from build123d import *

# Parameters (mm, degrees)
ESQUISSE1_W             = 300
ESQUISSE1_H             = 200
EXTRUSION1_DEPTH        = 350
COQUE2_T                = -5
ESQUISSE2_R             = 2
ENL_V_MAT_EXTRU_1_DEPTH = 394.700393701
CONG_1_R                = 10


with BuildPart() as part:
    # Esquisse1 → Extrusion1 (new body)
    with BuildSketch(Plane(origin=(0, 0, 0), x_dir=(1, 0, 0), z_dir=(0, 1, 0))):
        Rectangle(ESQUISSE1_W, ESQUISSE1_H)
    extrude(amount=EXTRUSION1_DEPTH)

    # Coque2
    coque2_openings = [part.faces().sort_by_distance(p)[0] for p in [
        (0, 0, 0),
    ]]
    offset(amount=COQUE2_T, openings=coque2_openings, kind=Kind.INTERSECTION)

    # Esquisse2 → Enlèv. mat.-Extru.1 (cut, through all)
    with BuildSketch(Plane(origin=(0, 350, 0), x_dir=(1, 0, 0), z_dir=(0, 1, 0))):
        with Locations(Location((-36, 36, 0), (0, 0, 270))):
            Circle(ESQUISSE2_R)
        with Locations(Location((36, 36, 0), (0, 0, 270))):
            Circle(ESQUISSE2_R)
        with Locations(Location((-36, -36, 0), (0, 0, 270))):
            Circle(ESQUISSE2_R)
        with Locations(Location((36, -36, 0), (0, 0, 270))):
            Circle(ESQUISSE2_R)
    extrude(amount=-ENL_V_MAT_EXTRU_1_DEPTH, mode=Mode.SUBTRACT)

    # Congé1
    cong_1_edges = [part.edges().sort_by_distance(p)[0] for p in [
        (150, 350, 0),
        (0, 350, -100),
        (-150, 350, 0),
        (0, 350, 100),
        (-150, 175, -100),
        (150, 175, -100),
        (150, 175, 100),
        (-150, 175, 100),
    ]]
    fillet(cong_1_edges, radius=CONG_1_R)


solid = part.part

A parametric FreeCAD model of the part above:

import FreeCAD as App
import Part
import Sketcher


def edges_at(feature, points):
    """Names of the edges that pass closest to the given points."""
    edges = feature.Shape.Edges
    near = lambda p: min(range(len(edges)), key=lambda i: edges[i].distToShape(Part.Vertex(*p))[0])
    return sorted({f"Edge{near(p) + 1}" for p in points})


def faces_at(feature, points):
    """Names of the faces that lie closest to the given points."""
    faces = feature.Shape.Faces
    near = lambda p: min(range(len(faces)), key=lambda i: faces[i].distToShape(Part.Vertex(*p))[0])
    return sorted({f"Face{near(p) + 1}" for p in points})

doc = App.newDocument("Part")
body = doc.addObject("PartDesign::Body", "Body")

# Sketch on XZ plane
sketch1 = doc.addObject("Sketcher::SketchObject", "Sketch")
body.addObject(sketch1)
sketch1.AttachmentSupport = (doc.XZ_Plane, [""])
sketch1.MapMode = "FlatFace"
sketch1.addGeometry([
    Part.LineSegment(App.Vector(-150, -100, 0), App.Vector(-150, 100, 0)),
    Part.LineSegment(App.Vector(-150, 100, 0), App.Vector(150, 100, 0)),
    Part.LineSegment(App.Vector(150, 100, 0), App.Vector(150, -100, 0)),
    Part.LineSegment(App.Vector(150, -100, 0), App.Vector(-150, -100, 0)),
], False)
sketch1.addConstraint([
    Sketcher.Constraint("Coincident", 0, 2, 1, 1),
    Sketcher.Constraint("Coincident", 1, 2, 2, 1),
    Sketcher.Constraint("Coincident", 2, 2, 3, 1),
    Sketcher.Constraint("Coincident", 3, 2, 0, 1),
    Sketcher.Constraint("Vertical", 0),
    Sketcher.Constraint("Horizontal", 1),
    Sketcher.Constraint("Vertical", 2),
    Sketcher.Constraint("Horizontal", 3),
    Sketcher.Constraint("Symmetric", 0, 2, 2, 2, -1, 1),
    Sketcher.Constraint("DistanceX", 1, 1, 1, 2, 300.0),
    Sketcher.Constraint("DistanceY", 0, 1, 0, 2, 200.0),
])
pad1 = doc.addObject("PartDesign::Pad", "Pad")
body.addObject(pad1)
pad1.Profile = sketch1
pad1.Length = 350
pad1.Reversed = True
doc.recompute()

thickness = doc.addObject("PartDesign::Thickness", "Thickness")
body.addObject(thickness)
thickness.Base = (pad1, faces_at(pad1, [(0, 0, 0)]))
thickness.Value = 5
thickness.Reversed = True
thickness.Join = "Intersection"

# Sketch on XZ plane
sketch2 = doc.addObject("Sketcher::SketchObject", "Sketch001")
body.addObject(sketch2)
sketch2.AttachmentSupport = (doc.XZ_Plane, [""])
sketch2.MapMode = "FlatFace"
sketch2.AttachmentOffset = App.Placement(App.Vector(0, 0, -350), App.Rotation())
sketch2.addGeometry([
    Part.Circle(App.Vector(-36, -36, 0), App.Vector(0, 0, 1), 2),
    Part.Circle(App.Vector(36, -36, 0), App.Vector(0, 0, 1), 2),
    Part.Circle(App.Vector(-36, 36, 0), App.Vector(0, 0, 1), 2),
    Part.Circle(App.Vector(36, 36, 0), App.Vector(0, 0, 1), 2),
], False)
sketch2.addConstraint([
    Sketcher.Constraint("Equal", 0, 1),
    Sketcher.Constraint("Equal", 1, 2),
    Sketcher.Constraint("Equal", 2, 3),
    Sketcher.Constraint("Symmetric", 1, 3, 2, 3, -1, 1),
    Sketcher.Constraint("Symmetric", 0, 3, 3, 3, -1, 1),
    Sketcher.Constraint("Symmetric", 0, 3, 1, 3, -2),
    Sketcher.Constraint("Diameter", 0, 4.0),
    Sketcher.Constraint("DistanceX", 0, 3, -1, 1, 36.0),
    Sketcher.Constraint("DistanceY", 0, 3, -1, 1, 36.0),
])
pocket1 = doc.addObject("PartDesign::Pocket", "Pocket")
body.addObject(pocket1)
pocket1.Profile = sketch2
pocket1.Type = "ThroughAll"
pocket1.Reversed = True
doc.recompute()

fillet = doc.addObject("PartDesign::Fillet", "Fillet")
body.addObject(fillet)
fillet.Base = (pocket1, edges_at(pocket1, [
    (150, 350, 0),
    (0, 350, -100),
    (-150, 350, 0),
    (0, 350, 100),
    (-150, 175, -100),
    (150, 175, -100),
    (150, 175, 100),
    (-150, 175, 100),
]))
fillet.Radius = 10

doc.recompute()
